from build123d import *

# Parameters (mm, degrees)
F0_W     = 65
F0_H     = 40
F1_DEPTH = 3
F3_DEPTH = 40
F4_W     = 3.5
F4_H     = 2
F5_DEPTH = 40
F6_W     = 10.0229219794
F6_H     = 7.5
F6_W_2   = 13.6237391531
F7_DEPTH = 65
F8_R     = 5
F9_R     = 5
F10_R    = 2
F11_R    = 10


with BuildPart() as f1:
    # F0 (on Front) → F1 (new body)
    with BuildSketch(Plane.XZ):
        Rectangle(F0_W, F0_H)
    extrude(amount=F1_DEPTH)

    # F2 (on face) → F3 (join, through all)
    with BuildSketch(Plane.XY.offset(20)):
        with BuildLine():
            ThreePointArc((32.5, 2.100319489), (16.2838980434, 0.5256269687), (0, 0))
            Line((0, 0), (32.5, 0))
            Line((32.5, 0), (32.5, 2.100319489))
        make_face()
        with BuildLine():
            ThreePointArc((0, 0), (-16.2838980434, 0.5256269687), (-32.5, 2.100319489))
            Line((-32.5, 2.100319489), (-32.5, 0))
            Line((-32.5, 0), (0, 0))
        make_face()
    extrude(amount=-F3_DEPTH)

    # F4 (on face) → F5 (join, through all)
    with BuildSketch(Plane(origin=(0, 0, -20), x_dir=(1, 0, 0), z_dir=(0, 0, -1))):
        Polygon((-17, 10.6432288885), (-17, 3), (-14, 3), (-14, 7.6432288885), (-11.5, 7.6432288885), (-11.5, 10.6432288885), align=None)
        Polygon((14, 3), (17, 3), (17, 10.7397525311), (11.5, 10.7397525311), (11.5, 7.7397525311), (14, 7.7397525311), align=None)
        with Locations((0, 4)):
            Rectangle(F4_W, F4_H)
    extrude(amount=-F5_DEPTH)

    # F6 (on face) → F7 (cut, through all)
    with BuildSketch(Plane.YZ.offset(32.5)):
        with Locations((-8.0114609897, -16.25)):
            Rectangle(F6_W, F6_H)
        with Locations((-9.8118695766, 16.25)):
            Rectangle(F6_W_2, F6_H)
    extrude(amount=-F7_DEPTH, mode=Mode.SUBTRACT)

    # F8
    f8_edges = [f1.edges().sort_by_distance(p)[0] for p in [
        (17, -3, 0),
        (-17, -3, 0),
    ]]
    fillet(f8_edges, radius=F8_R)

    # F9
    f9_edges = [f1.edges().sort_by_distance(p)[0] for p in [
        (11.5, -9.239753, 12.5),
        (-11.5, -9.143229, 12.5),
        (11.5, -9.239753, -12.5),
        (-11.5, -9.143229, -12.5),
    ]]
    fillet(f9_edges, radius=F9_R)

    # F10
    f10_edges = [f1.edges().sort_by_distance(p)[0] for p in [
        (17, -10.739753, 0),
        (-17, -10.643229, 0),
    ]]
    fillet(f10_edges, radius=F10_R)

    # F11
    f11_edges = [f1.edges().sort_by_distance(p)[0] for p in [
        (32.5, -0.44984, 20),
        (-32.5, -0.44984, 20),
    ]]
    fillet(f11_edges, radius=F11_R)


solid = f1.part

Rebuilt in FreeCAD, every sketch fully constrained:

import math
import FreeCAD as App
import Part
import Sketcher

V = App.Vector


def edges_at(feature, points):
    """Names of the edges that pass closest to the given points."""
    edges = feature.Shape.Edges
    near = lambda p: min(range(len(edges)), key=lambda i: edges[i].distToShape(Part.Vertex(*p))[0])
    return sorted({f"Edge{near(p) + 1}" for p in points})


def add_polygon(sketch, points):
    """Adds a closed chain of lines whose ends are joined by coincident constraints."""
    first, n = sketch.GeometryCount, len(points)
    for a, b in zip(points, points[1:] + points[:1]):
        sketch.addGeometry(Part.LineSegment(App.Vector(*a, 0), App.Vector(*b, 0)), False)
    for i in range(n):
        sketch.addConstraint(Sketcher.Constraint("Coincident", first + i, 2, first + (i + 1) % n, 1))

doc = App.newDocument("Part")
params = doc.addObject("Spreadsheet::Sheet", "Params")
for row, (alias, value) in enumerate([
    ("sketch1_width", "65 mm"),
    ("sketch1_height", "40 mm"),
    ("pad1_length", "3 mm"),
    ("sketch2_radius", "252.5 mm"),
    ("sketch2_width", "32.5 mm"),
    ("pad2_length", "40 mm"),
    ("sketch3_width", "3 mm"),
    ("sketch3_height", "2 mm"),
    ("sketch3_width2", "2.5 mm"),
    ("sketch3_width3", "3.5 mm"),
    ("pad3_length", "40 mm"),
    ("sketch4_height", "7.5 mm"),
    ("fillet_radius", "5 mm"),
    ("fillet2_radius", "5 mm"),
    ("fillet3_radius", "2 mm"),
    ("fillet4_radius", "10 mm"),
], start=1):
    params.set(f"A{row}", alias)
    params.set(f"B{row}", "=" + value)
    params.setAlias(f"B{row}", alias)

body = doc.addObject("PartDesign::Body", "Body")

# Sketch on XZ plane
sketch1 = body.newObject("Sketcher::SketchObject", "Sketch")
sketch1.AttachmentSupport = (doc.getObject("XZ_Plane"), [""])
sketch1.MapMode = "FlatFace"
add_polygon(sketch1, [(-32, 20), (-32, -20), (32, -20), (32, 20)])  # lines 0-3
sketch1.addConstraint(Sketcher.Constraint("Vertical", 0))
sketch1.addConstraint(Sketcher.Constraint("Horizontal", 1))
sketch1.addConstraint(Sketcher.Constraint("Vertical", 2))
sketch1.addConstraint(Sketcher.Constraint("Horizontal", 3))
sketch1.addConstraint(Sketcher.Constraint("Symmetric", 0, 2, 2, 2, -1, 1))
sketch1.addConstraint(Sketcher.Constraint("DistanceX", 1, 1, 1, 2, 65.0))
sketch1.addConstraint(Sketcher.Constraint("DistanceY", 0, 2, 0, 1, 40.0))
sketch1.setExpression("Constraints[9]", "Params.sketch1_width")
sketch1.setExpression("Constraints[10]", "Params.sketch1_height")
pad1 = body.newObject("PartDesign::Pad", "Pad")
pad1.Profile = sketch1
pad1.setExpression("Length", "Params.pad1_length")

# Sketch on XY plane
sketch2 = body.newObject("Sketcher::SketchObject", "Sketch001")
sketch2.AttachmentSupport = (doc.getObject("XY_Plane"), [""])
sketch2.MapMode = "FlatFace"
sketch2.AttachmentOffset = App.Placement(V(0, 0, 20), App.Rotation())
sketch2.addGeometry(Part.ArcOfCircle(Part.Circle(V(0, 252.5, 0), V(0, 0, 1), 252.5), math.radians(-90), math.radians(-82.6)), False)
sketch2.addGeometry(Part.LineSegment(V(0, 0, 0), V(32.5, 0, 0)), False)
sketch2.addGeometry(Part.LineSegment(V(32.5, 0, 0), V(32.5, 2.1, 0)), False)
sketch2.addGeometry(Part.ArcOfCircle(Part.Circle(V(0, 252.5, 0), V(0, 0, 1), 252.5), math.radians(-97.4), math.radians(-90)), False)
sketch2.addGeometry(Part.LineSegment(V(-32.5, 2.1, 0), V(-32.5, 0, 0)), False)
sketch2.addGeometry(Part.LineSegment(V(-32.5, 0, 0), V(0, 0, 0)), False)
sketch2.addConstraint(Sketcher.Constraint("Tangent", 0, 1, 1, 1))
sketch2.addConstraint(Sketcher.Constraint("Coincident", 1, 2, 2, 1))
sketch2.addConstraint(Sketcher.Constraint("Coincident", 2, 2, 0, 2))
sketch2.addConstraint(Sketcher.Constraint("Coincident", 3, 1, 4, 1))
sketch2.addConstraint(Sketcher.Constraint("Coincident", 4, 2, 5, 1))
sketch2.addConstraint(Sketcher.Constraint("Tangent", 5, 2, 3, 2))
sketch2.addConstraint(Sketcher.Constraint("Horizontal", 1))
sketch2.addConstraint(Sketcher.Constraint("Vertical", 2))
sketch2.addConstraint(Sketcher.Constraint("Vertical", 4))
sketch2.addConstraint(Sketcher.Constraint("Horizontal", 5))
sketch2.addConstraint(Sketcher.Constraint("Coincident", 0, 1, -1, 1))
sketch2.addConstraint(Sketcher.Constraint("Coincident", 5, 2, -1, 1))
sketch2.addConstraint(Sketcher.Constraint("Equal", 0, 3))
sketch2.addConstraint(Sketcher.Constraint("Horizontal", 2, 2, 3, 1))
sketch2.addConstraint(Sketcher.Constraint("Radius", 0, 252.5))
sketch2.addConstraint(Sketcher.Constraint("DistanceX", 1, 1, 1, 2, 32.5))
sketch2.setExpression("Constraints[14]", "Params.sketch2_radius")
sketch2.setExpression("Constraints[15]", "Params.sketch2_width")
pad2 = body.newObject("PartDesign::Pad", "Pad001")
pad2.Profile = sketch2
pad2.setExpression("Length", "Params.pad2_length")
pad2.Reversed = True

# Sketch on XY plane
sketch3 = body.newObject("Sketcher::SketchObject", "Sketch002")
sketch3.AttachmentSupport = (doc.getObject("XY_Plane"), [""])
sketch3.MapMode = "FlatFace"
sketch3.AttachmentOffset = App.Placement(V(0, 0, -20), App.Rotation())
add_polygon(sketch3, [(-17, -10.6), (-17, -3), (-14, -3), (-14, -7.6), (-11.5, -7.6), (-11.5, -10.6)])  # lines 0-5
add_polygon(sketch3, [(14, -3), (17, -3), (17, -10.7), (11.5, -10.7), (11.5, -7.7), (14, -7.7)])  # lines 6-11
add_polygon(sketch3, [(-1.8, -5), (-1.8, -3), (1.8, -3), (1.8, -5)])  # lines 12-15
sketch3.addConstraint(Sketcher.Constraint("Vertical", 0))
sketch3.addConstraint(Sketcher.Constraint("Horizontal", 1))
sketch3.addConstraint(Sketcher.Constraint("Vertical", 2))
sketch3.addConstraint(Sketcher.Constraint("Horizontal", 3))
sketch3.addConstraint(Sketcher.Constraint("Vertical", 4))
sketch3.addConstraint(Sketcher.Constraint("Horizontal", 5))
sketch3.addConstraint(Sketcher.Constraint("Horizontal", 6))
sketch3.addConstraint(Sketcher.Constraint("Vertical", 7))
sketch3.addConstraint(Sketcher.Constraint("Horizontal", 8))
sketch3.addConstraint(Sketcher.Constraint("Vertical", 9))
sketch3.addConstraint(Sketcher.Constraint("Horizontal", 10))
sketch3.addConstraint(Sketcher.Constraint("Vertical", 11))
sketch3.addConstraint(Sketcher.Constraint("Vertical", 12))
sketch3.addConstraint(Sketcher.Constraint("Horizontal", 13))
sketch3.addConstraint(Sketcher.Constraint("Vertical", 14))
sketch3.addConstraint(Sketcher.Constraint("Horizontal", 15))
sketch3.addConstraint(Sketcher.Constraint("Symmetric", 0, 2, 6, 2, -2))
sketch3.addConstraint(Sketcher.Constraint("Horizontal", 11, 2, 12, 2))
sketch3.addConstraint(Sketcher.Constraint("Equal", 1, 6))
sketch3.addConstraint(Sketcher.Constraint("Equal", 5, 8))
sketch3.addConstraint(Sketcher.Constraint("Equal", 6, 4))
sketch3.addConstraint(Sketcher.Constraint("Equal", 4, 9))
sketch3.addConstraint(Sketcher.Constraint("DistanceX", 1, 1, 1, 2, 3.0))
sketch3.addConstraint(Sketcher.Constraint("DistanceY", 12, 1, 12, 2, 2.0))
sketch3.addConstraint(Sketcher.Constraint("DistanceX", 3, 1, 3, 2, 2.5))
sketch3.addConstraint(Sketcher.Constraint("DistanceX", 13, 1, 13, 2, 3.5))
sketch3.addConstraint(Sketcher.Constraint("DistanceX", 0, 2, -1, 1, 17.0))
sketch3.addConstraint(Sketcher.Constraint("DistanceY", 0, 2, -1, 1, 3.0))
sketch3.addConstraint(Sketcher.Constraint("DistanceX", 12, 2, -1, 1, 1.75))
sketch3.addConstraint(Sketcher.Constraint("DistanceY", 0, 1, 0, 2, 7.643229))
sketch3.addConstraint(Sketcher.Constraint("DistanceY", 7, 2, 7, 1, 7.739753))
sketch3.setExpression("Constraints[38]", "Params.sketch3_width")
sketch3.setExpression("Constraints[39]", "Params.sketch3_height")
sketch3.setExpression("Constraints[40]", "Params.sketch3_width2")
sketch3.setExpression("Constraints[41]", "Params.sketch3_width3")
pad3 = body.newObject("PartDesign::Pad", "Pad002")
pad3.Profile = sketch3
pad3.setExpression("Length", "Params.pad3_length")

# Sketch on YZ plane
sketch4 = body.newObject("Sketcher::SketchObject", "Sketch003")
sketch4.AttachmentSupport = (doc.getObject("YZ_Plane"), [""])
sketch4.MapMode = "FlatFace"
sketch4.AttachmentOffset = App.Placement(V(0, 0, 32.5), App.Rotation())
add_polygon(sketch4, [(-13, -12), (-13, -20), (-3, -20), (-3, -12)])  # lines 0-3
add_polygon(sketch4, [(-17, 20), (-17, 12), (-3, 12), (-3, 20)])  # lines 4-7
sketch4.addConstraint(Sketcher.Constraint("Vertical", 0))
sketch4.addConstraint(Sketcher.Constraint("Horizontal", 1))
sketch4.addConstraint(Sketcher.Constraint("Vertical", 2))
sketch4.addConstraint(Sketcher.Constraint("Horizontal", 3))
sketch4.addConstraint(Sketcher.Constraint("Vertical", 4))
sketch4.addConstraint(Sketcher.Constraint("Horizontal", 5))
sketch4.addConstraint(Sketcher.Constraint("Vertical", 6))
sketch4.addConstraint(Sketcher.Constraint("Horizontal", 7))
sketch4.addConstraint(Sketcher.Constraint("Symmetric", 2, 2, 5, 2, -1))
sketch4.addConstraint(Sketcher.Constraint("Equal", 2, 4))
sketch4.addConstraint(Sketcher.Constraint("DistanceY", 0, 2, 0, 1, 7.5))
sketch4.addConstraint(Sketcher.Constraint("DistanceY", 0, 2, -1, 1, 20.0))
sketch4.addConstraint(Sketcher.Constraint("DistanceX", 1, 2, -1, 1, 3.0))
sketch4.addConstraint(Sketcher.Constraint("DistanceX", 1, 1, 1, 2, 10.022922))
sketch4.addConstraint(Sketcher.Constraint("DistanceX", 5, 1, 5, 2, 13.623739))
sketch4.setExpression("Constraints[18]", "Params.sketch4_height")
pocket1 = body.newObject("PartDesign::Pocket", "Pocket")
pocket1.Profile = sketch4
pocket1.Type = "ThroughAll"
doc.recompute()

fillet = body.newObject("PartDesign::Fillet", "Fillet")
fillet.Base = (pocket1, edges_at(pocket1, [(17, -3, 0), (-17, -3, 0)]))
fillet.setExpression("Radius", "Params.fillet_radius")
doc.recompute()

fillet2 = body.newObject("PartDesign::Fillet", "Fillet001")
fillet2.Base = (fillet, edges_at(fillet, [
    (11.5, -9.24, 12.5),
    (-11.5, -9.143, 12.5),
    (11.5, -9.24, -12.5),
    (-11.5, -9.143, -12.5),
]))
fillet2.setExpression("Radius", "Params.fillet2_radius")
doc.recompute()

fillet3 = body.newObject("PartDesign::Fillet", "Fillet002")
fillet3.Base = (fillet2, edges_at(fillet2, [(17, -10.74, 0), (-17, -10.643, 0)]))
fillet3.setExpression("Radius", "Params.fillet3_radius")
doc.recompute()

fillet4 = body.newObject("PartDesign::Fillet", "Fillet003")
fillet4.Base = (fillet3, edges_at(fillet3, [(32.5, -0.45, 20), (-32.5, -0.45, 20)]))
fillet4.setExpression("Radius", "Params.fillet4_radius")

doc.recompute()
